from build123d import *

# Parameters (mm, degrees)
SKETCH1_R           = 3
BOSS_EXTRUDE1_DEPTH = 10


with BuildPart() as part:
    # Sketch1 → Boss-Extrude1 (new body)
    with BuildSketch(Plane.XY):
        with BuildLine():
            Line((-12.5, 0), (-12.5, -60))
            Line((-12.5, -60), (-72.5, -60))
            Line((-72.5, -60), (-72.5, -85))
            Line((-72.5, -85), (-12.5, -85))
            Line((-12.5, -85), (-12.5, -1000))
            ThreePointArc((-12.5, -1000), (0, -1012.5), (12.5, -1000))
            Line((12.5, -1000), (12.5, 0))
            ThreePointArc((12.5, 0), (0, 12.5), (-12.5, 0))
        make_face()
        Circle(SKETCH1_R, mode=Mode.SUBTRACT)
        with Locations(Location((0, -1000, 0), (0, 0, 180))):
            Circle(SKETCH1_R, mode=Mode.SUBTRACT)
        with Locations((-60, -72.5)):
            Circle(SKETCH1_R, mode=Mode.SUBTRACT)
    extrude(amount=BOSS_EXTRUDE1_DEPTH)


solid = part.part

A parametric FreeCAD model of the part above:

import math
import FreeCAD as App
import Part
import Sketcher
from FreeCAD import Vector

doc = App.newDocument("Part")
body = doc.addObject("PartDesign::Body", "Body")

sketch1 = body.newObject("Sketcher::SketchObject", "Sketch")
sketch1.AttachmentSupport = (doc.getObject("XY_Plane"), [""])
sketch1.MapMode = "FlatFace"
sketch1.addGeometry([
    Part.LineSegment(Vector(-12.5, 0, 0), Vector(-12.5, -60, 0)),
    Part.LineSegment(Vector(-12.5, -60, 0), Vector(-72.5, -60, 0)),
    Part.LineSegment(Vector(-72.5, -60, 0), Vector(-72.5, -85, 0)),
    Part.LineSegment(Vector(-72.5, -85, 0), Vector(-12.5, -85, 0)),
    Part.LineSegment(Vector(-12.5, -85, 0), Vector(-12.5, -1000, 0)),
    Part.ArcOfCircle(Part.Circle(Vector(0, -1000, 0), Vector(0, 0, 1), 12.5), math.radians(180), math.radians(360)),
    Part.LineSegment(Vector(12.5, -1000, 0), Vector(12.5, 0, 0)),
    Part.ArcOfCircle(Part.Circle(Vector(0, 0, 0), Vector(0, 0, 1), 12.5), math.radians(0), math.radians(180)),
    Part.Circle(Vector(0, -1000, 0), Vector(0, 0, 1), 3),
    Part.Circle(Vector(-60, -72.5, 0), Vector(0, 0, 1), 3),
    Part.Circle(Vector(0, 0, 0), Vector(0, 0, 1), 3),
], False)
sketch1.addConstraint([
    Sketcher.Constraint("Coincident", 0, 2, 1, 1),
    Sketcher.Constraint("Coincident", 1, 2, 2, 1),
    Sketcher.Constraint("Coincident", 2, 2, 3, 1),
    Sketcher.Constraint("Coincident", 3, 2, 4, 1),
    Sketcher.Constraint("Tangent", 4, 2, 5, 1),
    Sketcher.Constraint("Tangent", 5, 2, 6, 1),
    Sketcher.Constraint("Tangent", 6, 2, 7, 1),
    Sketcher.Constraint("Tangent", 7, 2, 0, 1),
    Sketcher.Constraint("Vertical", 0),
    Sketcher.Constraint("Horizontal", 1),
    Sketcher.Constraint("Vertical", 2),
    Sketcher.Constraint("Horizontal", 3),
    Sketcher.Constraint("Vertical", 4),
    Sketcher.Constraint("Vertical", 6),
    Sketcher.Constraint("Coincident", 7, 3, -1, 1),
    Sketcher.Constraint("Coincident", 10, 3, -1, 1),
    Sketcher.Constraint("Coincident", 8, 3, 5, 3),
    Sketcher.Constraint("Equal", 5, 7),
    Sketcher.Constraint("Equal", 8, 9),
    Sketcher.Constraint("Equal", 9, 10),
    Sketcher.Constraint("Equal", 3, 0),
    Sketcher.Constraint("Diameter", 8, 6.0),
    Sketcher.Constraint("Radius", 5, 12.5),
    Sketcher.Constraint("DistanceX", 1, 2, 1, 1, 60.0),
    Sketcher.Constraint("DistanceY", 2, 2, 2, 1, 25.0),
    Sketcher.Constraint("DistanceY", 4, 2, 4, 1, 915.0),
    Sketcher.Constraint("DistanceX", 9, 3, -1, 1, 60.0),
    Sketcher.Constraint("DistanceY", 9, 3, -1, 1, 72.5),
])
pad1 = body.newObject("PartDesign::Pad", "Pad")
pad1.Profile = sketch1
pad1.Length = 10

doc.recompute()
